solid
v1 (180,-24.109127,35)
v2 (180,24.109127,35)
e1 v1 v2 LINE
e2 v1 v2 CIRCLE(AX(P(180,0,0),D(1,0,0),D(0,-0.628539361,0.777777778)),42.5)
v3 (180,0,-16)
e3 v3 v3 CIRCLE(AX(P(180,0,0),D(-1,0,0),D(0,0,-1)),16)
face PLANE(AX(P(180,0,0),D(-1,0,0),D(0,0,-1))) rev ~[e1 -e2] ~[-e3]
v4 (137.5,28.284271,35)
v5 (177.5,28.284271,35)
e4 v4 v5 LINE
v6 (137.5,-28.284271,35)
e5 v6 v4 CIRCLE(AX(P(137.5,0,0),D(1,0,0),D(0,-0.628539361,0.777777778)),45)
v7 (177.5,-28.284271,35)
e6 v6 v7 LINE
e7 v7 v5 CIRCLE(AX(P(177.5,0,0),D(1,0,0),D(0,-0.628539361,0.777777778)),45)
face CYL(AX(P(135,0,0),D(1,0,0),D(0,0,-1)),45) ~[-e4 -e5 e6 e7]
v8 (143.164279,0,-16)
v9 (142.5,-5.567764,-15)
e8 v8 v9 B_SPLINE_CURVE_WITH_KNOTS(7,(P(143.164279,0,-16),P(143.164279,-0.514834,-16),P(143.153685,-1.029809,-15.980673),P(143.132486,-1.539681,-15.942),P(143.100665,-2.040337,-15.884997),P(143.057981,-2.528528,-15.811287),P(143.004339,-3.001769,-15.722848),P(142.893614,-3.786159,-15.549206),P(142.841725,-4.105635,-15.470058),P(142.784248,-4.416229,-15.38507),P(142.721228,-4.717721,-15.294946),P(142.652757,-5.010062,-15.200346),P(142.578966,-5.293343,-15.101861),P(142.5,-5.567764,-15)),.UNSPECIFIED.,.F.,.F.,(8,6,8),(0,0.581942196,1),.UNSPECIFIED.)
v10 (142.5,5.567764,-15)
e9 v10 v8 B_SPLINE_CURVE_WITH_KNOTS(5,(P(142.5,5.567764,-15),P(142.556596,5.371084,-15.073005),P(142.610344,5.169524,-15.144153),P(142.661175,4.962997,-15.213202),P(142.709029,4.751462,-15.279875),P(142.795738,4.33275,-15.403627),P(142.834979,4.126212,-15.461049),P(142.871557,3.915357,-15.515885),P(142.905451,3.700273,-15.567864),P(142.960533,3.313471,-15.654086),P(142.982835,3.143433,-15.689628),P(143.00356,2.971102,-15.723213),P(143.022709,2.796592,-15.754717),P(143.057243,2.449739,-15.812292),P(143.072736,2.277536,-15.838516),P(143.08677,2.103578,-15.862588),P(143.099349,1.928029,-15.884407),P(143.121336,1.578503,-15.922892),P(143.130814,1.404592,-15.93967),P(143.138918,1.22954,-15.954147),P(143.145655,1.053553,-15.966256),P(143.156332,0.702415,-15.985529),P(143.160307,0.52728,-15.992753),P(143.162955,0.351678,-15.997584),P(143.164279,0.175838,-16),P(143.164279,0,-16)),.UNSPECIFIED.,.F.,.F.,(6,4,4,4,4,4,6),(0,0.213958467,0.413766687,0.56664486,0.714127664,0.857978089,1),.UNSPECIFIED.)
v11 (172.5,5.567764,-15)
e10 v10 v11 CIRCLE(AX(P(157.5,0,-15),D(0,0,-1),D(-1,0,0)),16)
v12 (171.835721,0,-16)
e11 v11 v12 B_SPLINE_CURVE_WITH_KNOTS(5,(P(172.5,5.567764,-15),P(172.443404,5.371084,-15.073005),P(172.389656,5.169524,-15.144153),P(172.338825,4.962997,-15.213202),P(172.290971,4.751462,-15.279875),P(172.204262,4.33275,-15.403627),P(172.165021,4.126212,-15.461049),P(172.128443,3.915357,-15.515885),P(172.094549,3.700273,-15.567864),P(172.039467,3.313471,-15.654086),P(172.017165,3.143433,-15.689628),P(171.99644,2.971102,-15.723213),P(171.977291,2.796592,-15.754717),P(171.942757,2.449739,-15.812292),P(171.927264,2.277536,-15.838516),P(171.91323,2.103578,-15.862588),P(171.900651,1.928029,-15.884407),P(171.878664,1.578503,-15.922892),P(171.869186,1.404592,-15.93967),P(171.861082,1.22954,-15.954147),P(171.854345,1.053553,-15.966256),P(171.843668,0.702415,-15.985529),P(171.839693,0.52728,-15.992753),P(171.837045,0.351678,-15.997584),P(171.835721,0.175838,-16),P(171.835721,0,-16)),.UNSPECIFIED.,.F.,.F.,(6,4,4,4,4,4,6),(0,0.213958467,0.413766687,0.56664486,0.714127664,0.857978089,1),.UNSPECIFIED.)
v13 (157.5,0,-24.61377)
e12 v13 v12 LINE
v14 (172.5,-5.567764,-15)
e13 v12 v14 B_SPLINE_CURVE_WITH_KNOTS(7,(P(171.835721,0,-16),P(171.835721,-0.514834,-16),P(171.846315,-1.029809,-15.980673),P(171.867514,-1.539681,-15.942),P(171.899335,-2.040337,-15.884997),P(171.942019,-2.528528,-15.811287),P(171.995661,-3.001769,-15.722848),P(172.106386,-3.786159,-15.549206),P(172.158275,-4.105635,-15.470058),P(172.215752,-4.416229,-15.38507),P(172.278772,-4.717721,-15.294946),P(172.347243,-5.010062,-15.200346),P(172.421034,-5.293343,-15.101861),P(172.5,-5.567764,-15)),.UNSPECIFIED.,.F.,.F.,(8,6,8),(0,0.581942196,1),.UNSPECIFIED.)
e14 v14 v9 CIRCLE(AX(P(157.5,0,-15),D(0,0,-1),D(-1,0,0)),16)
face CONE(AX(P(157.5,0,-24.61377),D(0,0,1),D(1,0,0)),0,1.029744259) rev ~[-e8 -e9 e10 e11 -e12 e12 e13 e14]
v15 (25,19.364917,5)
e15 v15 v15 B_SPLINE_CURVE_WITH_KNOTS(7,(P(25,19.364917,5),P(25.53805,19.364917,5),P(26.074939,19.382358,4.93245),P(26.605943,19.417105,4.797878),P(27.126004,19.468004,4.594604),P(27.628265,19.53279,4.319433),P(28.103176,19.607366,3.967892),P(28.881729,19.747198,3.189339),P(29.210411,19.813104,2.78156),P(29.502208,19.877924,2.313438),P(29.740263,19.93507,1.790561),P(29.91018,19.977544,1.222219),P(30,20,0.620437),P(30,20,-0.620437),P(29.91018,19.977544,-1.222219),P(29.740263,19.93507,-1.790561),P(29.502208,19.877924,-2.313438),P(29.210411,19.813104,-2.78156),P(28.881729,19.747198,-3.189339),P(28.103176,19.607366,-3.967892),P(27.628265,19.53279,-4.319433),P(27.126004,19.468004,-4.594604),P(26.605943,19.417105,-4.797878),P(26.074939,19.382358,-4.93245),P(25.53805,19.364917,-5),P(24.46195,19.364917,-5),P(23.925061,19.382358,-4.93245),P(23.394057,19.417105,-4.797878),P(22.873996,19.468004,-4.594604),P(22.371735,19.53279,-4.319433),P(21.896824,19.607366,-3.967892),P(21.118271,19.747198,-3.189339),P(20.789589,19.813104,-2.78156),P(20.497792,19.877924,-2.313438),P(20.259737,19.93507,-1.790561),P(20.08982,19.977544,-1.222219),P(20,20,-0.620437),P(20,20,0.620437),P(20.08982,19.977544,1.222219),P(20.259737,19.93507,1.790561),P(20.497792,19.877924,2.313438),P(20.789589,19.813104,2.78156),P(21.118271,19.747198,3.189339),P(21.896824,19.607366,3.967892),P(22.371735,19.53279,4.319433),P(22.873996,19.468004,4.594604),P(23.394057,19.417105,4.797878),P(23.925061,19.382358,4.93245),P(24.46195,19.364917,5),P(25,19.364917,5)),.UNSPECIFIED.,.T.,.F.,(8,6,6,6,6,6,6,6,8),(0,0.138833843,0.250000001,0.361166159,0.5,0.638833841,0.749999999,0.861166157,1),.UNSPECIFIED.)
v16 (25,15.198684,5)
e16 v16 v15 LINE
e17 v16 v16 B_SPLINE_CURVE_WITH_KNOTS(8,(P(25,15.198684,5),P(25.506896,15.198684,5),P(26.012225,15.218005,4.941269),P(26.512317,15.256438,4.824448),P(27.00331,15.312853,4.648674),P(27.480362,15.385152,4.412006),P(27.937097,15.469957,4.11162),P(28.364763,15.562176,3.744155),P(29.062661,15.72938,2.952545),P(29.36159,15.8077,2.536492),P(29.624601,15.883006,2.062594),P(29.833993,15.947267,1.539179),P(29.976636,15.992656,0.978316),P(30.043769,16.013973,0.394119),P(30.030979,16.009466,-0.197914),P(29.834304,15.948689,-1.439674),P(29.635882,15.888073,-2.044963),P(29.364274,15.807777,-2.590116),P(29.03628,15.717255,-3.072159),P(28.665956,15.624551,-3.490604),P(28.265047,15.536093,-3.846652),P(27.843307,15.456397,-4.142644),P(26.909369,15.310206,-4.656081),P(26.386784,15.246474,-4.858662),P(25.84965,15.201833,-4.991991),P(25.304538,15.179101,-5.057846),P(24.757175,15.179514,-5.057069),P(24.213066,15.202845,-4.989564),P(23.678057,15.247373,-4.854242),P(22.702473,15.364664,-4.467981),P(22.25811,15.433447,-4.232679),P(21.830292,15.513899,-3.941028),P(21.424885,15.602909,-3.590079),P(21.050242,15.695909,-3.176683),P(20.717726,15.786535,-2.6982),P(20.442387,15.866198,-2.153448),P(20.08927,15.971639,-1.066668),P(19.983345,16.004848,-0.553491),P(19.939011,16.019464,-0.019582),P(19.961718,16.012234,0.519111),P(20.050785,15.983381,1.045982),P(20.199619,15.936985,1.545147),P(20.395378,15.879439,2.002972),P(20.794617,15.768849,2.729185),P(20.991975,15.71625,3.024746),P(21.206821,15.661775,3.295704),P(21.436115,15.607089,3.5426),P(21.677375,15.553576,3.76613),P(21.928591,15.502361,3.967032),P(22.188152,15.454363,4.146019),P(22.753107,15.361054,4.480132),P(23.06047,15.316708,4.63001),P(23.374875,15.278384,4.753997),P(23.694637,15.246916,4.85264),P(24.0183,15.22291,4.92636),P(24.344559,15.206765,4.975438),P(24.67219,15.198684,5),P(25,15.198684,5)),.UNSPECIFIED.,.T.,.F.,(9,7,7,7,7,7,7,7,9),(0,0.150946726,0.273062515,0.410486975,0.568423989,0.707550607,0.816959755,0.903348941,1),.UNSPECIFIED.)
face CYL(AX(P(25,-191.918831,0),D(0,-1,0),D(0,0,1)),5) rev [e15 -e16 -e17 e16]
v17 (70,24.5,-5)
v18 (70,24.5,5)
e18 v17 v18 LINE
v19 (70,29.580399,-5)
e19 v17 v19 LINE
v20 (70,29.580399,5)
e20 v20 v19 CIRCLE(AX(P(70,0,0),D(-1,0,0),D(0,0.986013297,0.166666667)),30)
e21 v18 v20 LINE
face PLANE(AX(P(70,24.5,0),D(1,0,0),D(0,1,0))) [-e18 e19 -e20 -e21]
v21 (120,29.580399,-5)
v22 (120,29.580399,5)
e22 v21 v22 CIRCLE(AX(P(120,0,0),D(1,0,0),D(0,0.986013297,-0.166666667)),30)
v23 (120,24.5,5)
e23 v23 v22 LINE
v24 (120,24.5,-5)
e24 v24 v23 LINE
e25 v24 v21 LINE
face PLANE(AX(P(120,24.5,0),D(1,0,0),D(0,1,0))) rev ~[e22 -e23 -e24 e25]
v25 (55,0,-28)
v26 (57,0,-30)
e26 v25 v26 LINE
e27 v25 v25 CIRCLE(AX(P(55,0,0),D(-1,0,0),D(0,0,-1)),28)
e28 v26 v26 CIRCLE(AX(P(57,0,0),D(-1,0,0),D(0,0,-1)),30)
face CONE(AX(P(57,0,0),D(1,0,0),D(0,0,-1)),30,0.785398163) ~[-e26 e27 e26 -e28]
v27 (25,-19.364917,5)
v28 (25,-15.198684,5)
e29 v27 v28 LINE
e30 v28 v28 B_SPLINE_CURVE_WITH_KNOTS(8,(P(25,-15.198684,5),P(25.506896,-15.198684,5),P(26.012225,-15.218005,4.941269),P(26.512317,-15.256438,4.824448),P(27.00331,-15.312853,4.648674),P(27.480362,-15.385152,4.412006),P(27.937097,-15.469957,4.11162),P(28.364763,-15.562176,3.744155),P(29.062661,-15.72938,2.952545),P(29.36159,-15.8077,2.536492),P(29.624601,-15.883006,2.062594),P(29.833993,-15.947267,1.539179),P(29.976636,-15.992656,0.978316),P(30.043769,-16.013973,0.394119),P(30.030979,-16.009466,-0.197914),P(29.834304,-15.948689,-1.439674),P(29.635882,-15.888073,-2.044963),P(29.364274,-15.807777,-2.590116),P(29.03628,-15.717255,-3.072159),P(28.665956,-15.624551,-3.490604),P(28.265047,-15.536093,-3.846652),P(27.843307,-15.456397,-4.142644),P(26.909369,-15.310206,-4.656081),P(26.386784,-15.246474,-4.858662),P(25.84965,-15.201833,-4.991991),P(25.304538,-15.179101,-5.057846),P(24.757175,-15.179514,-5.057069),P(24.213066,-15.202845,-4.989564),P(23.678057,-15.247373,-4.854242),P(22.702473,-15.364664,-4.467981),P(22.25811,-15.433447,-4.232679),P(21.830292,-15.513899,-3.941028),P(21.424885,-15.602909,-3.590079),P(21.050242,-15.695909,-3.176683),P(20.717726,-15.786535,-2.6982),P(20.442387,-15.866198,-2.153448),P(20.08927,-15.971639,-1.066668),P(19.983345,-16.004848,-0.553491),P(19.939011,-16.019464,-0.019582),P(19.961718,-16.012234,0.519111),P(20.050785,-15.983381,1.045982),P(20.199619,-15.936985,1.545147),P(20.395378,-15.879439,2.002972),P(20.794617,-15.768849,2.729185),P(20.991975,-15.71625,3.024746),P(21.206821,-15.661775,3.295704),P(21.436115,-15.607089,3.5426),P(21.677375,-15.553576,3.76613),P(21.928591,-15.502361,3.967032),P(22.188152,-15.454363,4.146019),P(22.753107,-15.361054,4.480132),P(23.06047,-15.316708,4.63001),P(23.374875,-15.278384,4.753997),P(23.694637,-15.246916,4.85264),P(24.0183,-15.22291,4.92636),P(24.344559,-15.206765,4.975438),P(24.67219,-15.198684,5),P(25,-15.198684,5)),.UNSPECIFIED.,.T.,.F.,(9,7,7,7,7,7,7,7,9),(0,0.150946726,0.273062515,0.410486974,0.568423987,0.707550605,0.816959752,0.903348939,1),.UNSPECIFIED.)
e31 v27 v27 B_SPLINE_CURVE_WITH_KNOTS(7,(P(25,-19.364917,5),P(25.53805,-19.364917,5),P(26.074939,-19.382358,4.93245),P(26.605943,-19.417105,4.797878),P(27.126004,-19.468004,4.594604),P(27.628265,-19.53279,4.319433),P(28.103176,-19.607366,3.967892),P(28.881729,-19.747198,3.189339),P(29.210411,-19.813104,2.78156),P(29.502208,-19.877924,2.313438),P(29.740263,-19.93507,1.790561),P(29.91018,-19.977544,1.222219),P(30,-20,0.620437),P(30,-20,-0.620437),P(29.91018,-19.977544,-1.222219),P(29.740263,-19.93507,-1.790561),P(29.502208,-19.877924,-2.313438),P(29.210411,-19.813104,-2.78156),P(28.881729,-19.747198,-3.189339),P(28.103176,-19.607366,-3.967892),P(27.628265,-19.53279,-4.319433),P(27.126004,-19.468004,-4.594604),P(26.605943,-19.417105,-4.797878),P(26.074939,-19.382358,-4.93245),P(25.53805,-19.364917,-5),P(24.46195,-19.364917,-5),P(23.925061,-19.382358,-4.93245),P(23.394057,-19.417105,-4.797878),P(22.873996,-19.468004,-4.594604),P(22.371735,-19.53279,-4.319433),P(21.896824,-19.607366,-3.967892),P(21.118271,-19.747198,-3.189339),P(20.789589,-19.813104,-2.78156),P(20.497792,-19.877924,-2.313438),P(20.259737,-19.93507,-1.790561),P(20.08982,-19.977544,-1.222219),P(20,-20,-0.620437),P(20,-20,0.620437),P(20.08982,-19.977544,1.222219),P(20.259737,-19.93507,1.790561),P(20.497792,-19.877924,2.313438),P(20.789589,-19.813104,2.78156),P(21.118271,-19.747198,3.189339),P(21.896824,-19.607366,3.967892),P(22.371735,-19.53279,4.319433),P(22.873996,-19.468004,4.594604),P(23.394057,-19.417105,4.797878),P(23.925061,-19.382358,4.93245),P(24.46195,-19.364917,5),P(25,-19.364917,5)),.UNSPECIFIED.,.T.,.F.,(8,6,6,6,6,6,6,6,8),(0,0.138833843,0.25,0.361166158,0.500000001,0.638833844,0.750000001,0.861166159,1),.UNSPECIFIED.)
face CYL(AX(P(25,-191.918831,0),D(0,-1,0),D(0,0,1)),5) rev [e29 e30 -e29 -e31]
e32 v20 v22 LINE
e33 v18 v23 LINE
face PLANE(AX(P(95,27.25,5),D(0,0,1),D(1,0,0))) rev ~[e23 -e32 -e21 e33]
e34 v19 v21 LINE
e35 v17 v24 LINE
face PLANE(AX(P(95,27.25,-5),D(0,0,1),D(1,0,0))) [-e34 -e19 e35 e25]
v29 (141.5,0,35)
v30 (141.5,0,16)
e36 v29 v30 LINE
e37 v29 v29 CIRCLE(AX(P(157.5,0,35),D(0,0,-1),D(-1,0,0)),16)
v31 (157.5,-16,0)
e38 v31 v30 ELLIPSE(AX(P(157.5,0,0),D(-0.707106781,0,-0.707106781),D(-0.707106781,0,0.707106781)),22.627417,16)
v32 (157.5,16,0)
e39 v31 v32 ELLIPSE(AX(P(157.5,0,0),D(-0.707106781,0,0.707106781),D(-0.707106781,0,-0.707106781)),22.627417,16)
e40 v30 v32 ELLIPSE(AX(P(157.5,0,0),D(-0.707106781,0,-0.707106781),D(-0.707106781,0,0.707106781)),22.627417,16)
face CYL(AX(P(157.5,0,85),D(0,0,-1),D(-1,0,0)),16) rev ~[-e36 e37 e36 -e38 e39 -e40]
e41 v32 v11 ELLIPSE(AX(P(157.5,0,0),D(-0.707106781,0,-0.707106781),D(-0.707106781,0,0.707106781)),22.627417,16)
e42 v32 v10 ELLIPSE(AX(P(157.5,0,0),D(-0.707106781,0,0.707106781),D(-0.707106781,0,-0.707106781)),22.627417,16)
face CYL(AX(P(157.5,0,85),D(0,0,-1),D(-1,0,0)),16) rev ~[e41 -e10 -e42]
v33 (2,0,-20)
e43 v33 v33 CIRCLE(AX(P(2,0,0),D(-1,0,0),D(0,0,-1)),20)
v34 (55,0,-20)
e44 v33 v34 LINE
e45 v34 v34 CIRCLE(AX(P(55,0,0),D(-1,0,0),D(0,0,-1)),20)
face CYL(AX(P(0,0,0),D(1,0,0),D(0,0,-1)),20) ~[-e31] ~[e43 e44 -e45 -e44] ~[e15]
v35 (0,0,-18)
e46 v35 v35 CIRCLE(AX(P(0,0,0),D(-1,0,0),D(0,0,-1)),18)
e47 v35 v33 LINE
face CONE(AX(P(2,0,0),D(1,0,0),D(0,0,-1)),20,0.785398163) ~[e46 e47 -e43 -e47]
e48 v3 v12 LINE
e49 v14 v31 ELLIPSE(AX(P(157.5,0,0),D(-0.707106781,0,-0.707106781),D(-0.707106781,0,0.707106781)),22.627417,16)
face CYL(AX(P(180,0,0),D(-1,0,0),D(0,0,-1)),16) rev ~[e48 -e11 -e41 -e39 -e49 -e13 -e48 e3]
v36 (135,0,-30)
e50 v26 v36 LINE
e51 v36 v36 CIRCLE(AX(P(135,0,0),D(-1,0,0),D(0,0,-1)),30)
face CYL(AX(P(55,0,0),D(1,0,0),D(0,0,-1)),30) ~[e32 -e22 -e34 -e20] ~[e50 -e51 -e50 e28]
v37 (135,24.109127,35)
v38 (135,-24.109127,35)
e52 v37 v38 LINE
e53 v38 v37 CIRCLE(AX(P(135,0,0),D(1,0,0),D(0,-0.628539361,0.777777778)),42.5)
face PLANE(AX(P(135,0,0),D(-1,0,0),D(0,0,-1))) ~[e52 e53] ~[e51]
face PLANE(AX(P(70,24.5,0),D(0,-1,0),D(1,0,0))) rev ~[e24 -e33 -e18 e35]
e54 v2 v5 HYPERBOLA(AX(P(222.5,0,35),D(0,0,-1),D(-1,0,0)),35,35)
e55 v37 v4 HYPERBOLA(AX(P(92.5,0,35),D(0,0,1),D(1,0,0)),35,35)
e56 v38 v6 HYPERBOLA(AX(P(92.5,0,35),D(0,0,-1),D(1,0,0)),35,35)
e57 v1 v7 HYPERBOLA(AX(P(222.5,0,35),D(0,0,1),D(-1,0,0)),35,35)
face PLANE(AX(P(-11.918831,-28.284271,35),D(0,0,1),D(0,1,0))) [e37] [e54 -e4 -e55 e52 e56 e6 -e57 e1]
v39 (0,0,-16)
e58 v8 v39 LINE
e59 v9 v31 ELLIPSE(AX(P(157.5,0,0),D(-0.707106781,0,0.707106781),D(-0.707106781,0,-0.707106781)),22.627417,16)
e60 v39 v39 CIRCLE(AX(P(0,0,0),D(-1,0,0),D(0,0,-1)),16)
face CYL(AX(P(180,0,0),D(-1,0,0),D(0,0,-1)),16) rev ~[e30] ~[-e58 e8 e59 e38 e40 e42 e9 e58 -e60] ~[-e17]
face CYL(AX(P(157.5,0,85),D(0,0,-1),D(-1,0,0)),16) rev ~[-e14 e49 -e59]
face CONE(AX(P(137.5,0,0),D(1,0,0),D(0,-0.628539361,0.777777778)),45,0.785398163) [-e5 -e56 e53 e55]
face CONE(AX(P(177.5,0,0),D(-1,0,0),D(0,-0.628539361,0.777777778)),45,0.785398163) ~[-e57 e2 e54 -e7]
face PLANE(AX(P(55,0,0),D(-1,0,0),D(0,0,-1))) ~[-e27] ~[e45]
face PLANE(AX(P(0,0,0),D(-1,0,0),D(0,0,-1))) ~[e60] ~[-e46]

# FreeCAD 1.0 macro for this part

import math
import FreeCAD as App
import Part
import Sketcher

V = App.Vector
Q = App.Units.Quantity


def edges_at(feature, points):
    """Names of the edges that pass closest to the given points."""
    edges = feature.Shape.Edges
    near = lambda p: min(range(len(edges)), key=lambda i: edges[i].distToShape(Part.Vertex(*p))[0])
    return sorted({f"Edge{near(p) + 1}" for p in points})


def add_polygon(sketch, points):
    """Adds a closed chain of lines whose ends are joined by coincident constraints."""
    first, n = sketch.GeometryCount, len(points)
    for a, b in zip(points, points[1:] + points[:1]):
        sketch.addGeometry(Part.LineSegment(App.Vector(*a, 0), App.Vector(*b, 0)), False)
    for i in range(n):
        sketch.addConstraint(Sketcher.Constraint("Coincident", first + i, 2, first + (i + 1) % n, 1))

doc = App.newDocument("Part")
body = doc.addObject("PartDesign::Body", "Body")

sketch1 = body.newObject("Sketcher::SketchObject", "Sketch")
sketch1.AttachmentSupport = (doc.getObject("XY_Plane"), [""])
sketch1.MapMode = "FlatFace"
add_polygon(sketch1, [(0, 20), (0, 16), (180, 16), (180, 45), (135, 45), (135, 30), (55, 30), (55, 20)])
sketch1.addConstraint([
    Sketcher.Constraint("Vertical", 0),
    Sketcher.Constraint("Horizontal", 1),
    Sketcher.Constraint("Vertical", 2),
    Sketcher.Constraint("Horizontal", 3),
    Sketcher.Constraint("Vertical", 4),
    Sketcher.Constraint("Horizontal", 5),
    Sketcher.Constraint("Vertical", 6),
    Sketcher.Constraint("Horizontal", 7),
    Sketcher.Constraint("PointOnObject", 0, 2, -2),
    Sketcher.Constraint("DistanceX", 1, 1, 1, 2, Q("180 mm")),
    Sketcher.Constraint("DistanceX", 3, 2, 3, 1, Q("45 mm")),
    Sketcher.Constraint("DistanceX", 5, 2, 5, 1, Q("80 mm")),
    Sketcher.Constraint("DistanceY", 0, 2, 0, 1, Q("4 mm")),
    Sketcher.Constraint("DistanceY", 2, 1, 2, 2, Q("29 mm")),
    Sketcher.Constraint("DistanceY", 4, 2, 4, 1, Q("15 mm")),
    Sketcher.Constraint("DistanceY", -1, 1, 0, 2, Q("16 mm")),
])
revolution = body.newObject("PartDesign::Revolution", "Revolution")
revolution.Profile = sketch1
revolution.ReferenceAxis = (sketch1, ["H_Axis"])
revolution.Angle = 360

sketch2 = body.newObject("Sketcher::SketchObject", "Sketch001")
sketch2.AttachmentSupport = (doc.getObject("YZ_Plane"), [""])
sketch2.MapMode = "FlatFace"
sketch2.AttachmentOffset = App.Placement(V(0, 0, 180), App.Rotation())
sketch2.addGeometry([
    Part.LineSegment(V(-28.284271, 35, 0), V(28.284271, 35, 0)),
    Part.ArcOfCircle(Part.Circle(V(0, 0, 0), V(0, 0, 1), 45), math.radians(51.057559), math.radians(128.942441)),
], False)
sketch2.addConstraint([
    Sketcher.Constraint("Coincident", 0, 1, 1, 2),
    Sketcher.Constraint("Coincident", 1, 1, 0, 2),
    Sketcher.Constraint("Horizontal", 0),
    Sketcher.Constraint("Coincident", 1, 3, -1, 1),
    Sketcher.Constraint("Radius", 1, Q("45 mm")),
    Sketcher.Constraint("DistanceY", -1, 1, 0, 1, Q("35 mm")),
])
pocket1 = body.newObject("PartDesign::Pocket", "Pocket")
pocket1.Profile = sketch2
pocket1.Type = "ThroughAll"
pocket1.Midplane = True

sketch3 = body.newObject("Sketcher::SketchObject", "Sketch002")
sketch3.AttachmentSupport = (doc.getObject("XY_Plane"), [""])
sketch3.MapMode = "FlatFace"
add_polygon(sketch3, [(70, 30), (70, 24.5), (120, 24.5), (120, 30)])
sketch3.addConstraint([
    Sketcher.Constraint("Vertical", 0),
    Sketcher.Constraint("Horizontal", 1),
    Sketcher.Constraint("Vertical", 2),
    Sketcher.Constraint("Horizontal", 3),
    Sketcher.Constraint("DistanceX", 1, 1, 1, 2, Q("50 mm")),
    Sketcher.Constraint("DistanceY", 0, 2, 0, 1, Q("5.5 mm")),
    Sketcher.Constraint("DistanceX", -1, 1, 0, 2, Q("70 mm")),
    Sketcher.Constraint("DistanceY", -1, 1, 2, 2, Q("30 mm")),
])
pocket2 = body.newObject("PartDesign::Pocket", "Pocket001")
pocket2.Profile = sketch3
pocket2.Length = 10
pocket2.Midplane = True

sketch4 = body.newObject("Sketcher::SketchObject", "Sketch003")
sketch4.AttachmentSupport = (doc.getObject("XZ_Plane"), [""])
sketch4.MapMode = "FlatFace"
sketch4.addGeometry(Part.Circle(V(25, 0, 0), V(0, 0, 1), 5), False)
sketch4.addConstraint([
    Sketcher.Constraint("PointOnObject", 0, 3, -1),
    Sketcher.Constraint("Diameter", 0, Q("10 mm")),
    Sketcher.Constraint("DistanceX", -1, 1, 0, 3, Q("25 mm")),
])
pocket3 = body.newObject("PartDesign::Pocket", "Pocket002")
pocket3.Profile = sketch4
pocket3.Type = "ThroughAll"
pocket3.Midplane = True

sketch5 = body.newObject("Sketcher::SketchObject", "Sketch004")
sketch5.AttachmentSupport = (doc.getObject("XY_Plane"), [""])
sketch5.MapMode = "FlatFace"
sketch5.AttachmentOffset = App.Placement(V(0, 0, 35), App.Rotation())
sketch5.addGeometry(Part.Circle(V(157.5, 0, 0), V(0, 0, 1), 16), False)
sketch5.addConstraint([
    Sketcher.Constraint("PointOnObject", 0, 3, -1),
    Sketcher.Constraint("Diameter", 0, Q("32 mm")),
    Sketcher.Constraint("DistanceX", -1, 1, 0, 3, Q("157.5 mm")),
])
doc.recompute()
hole = body.newObject("PartDesign::Hole", "Hole")
hole.Profile = sketch5
hole.ThreadType = "None"
hole.Diameter = 32
hole.DepthType = "Dimension"
hole.Depth = 50
hole.DrillPoint = "Angled"
hole.DrillPointAngle = 118
doc.recompute()

chamfer = body.newObject("PartDesign::Chamfer", "Chamfer")
chamfer.Base = (hole, edges_at(hole, [(55, 0, 30), (0, 0, 20)]))
chamfer.Size = 2
doc.recompute()

chamfer2 = body.newObject("PartDesign::Chamfer", "Chamfer001")
chamfer2.Base = (chamfer, edges_at(chamfer, [(180, 0, -45), (135, 0, -45)]))
chamfer2.Size = 2.5

doc.recompute()
